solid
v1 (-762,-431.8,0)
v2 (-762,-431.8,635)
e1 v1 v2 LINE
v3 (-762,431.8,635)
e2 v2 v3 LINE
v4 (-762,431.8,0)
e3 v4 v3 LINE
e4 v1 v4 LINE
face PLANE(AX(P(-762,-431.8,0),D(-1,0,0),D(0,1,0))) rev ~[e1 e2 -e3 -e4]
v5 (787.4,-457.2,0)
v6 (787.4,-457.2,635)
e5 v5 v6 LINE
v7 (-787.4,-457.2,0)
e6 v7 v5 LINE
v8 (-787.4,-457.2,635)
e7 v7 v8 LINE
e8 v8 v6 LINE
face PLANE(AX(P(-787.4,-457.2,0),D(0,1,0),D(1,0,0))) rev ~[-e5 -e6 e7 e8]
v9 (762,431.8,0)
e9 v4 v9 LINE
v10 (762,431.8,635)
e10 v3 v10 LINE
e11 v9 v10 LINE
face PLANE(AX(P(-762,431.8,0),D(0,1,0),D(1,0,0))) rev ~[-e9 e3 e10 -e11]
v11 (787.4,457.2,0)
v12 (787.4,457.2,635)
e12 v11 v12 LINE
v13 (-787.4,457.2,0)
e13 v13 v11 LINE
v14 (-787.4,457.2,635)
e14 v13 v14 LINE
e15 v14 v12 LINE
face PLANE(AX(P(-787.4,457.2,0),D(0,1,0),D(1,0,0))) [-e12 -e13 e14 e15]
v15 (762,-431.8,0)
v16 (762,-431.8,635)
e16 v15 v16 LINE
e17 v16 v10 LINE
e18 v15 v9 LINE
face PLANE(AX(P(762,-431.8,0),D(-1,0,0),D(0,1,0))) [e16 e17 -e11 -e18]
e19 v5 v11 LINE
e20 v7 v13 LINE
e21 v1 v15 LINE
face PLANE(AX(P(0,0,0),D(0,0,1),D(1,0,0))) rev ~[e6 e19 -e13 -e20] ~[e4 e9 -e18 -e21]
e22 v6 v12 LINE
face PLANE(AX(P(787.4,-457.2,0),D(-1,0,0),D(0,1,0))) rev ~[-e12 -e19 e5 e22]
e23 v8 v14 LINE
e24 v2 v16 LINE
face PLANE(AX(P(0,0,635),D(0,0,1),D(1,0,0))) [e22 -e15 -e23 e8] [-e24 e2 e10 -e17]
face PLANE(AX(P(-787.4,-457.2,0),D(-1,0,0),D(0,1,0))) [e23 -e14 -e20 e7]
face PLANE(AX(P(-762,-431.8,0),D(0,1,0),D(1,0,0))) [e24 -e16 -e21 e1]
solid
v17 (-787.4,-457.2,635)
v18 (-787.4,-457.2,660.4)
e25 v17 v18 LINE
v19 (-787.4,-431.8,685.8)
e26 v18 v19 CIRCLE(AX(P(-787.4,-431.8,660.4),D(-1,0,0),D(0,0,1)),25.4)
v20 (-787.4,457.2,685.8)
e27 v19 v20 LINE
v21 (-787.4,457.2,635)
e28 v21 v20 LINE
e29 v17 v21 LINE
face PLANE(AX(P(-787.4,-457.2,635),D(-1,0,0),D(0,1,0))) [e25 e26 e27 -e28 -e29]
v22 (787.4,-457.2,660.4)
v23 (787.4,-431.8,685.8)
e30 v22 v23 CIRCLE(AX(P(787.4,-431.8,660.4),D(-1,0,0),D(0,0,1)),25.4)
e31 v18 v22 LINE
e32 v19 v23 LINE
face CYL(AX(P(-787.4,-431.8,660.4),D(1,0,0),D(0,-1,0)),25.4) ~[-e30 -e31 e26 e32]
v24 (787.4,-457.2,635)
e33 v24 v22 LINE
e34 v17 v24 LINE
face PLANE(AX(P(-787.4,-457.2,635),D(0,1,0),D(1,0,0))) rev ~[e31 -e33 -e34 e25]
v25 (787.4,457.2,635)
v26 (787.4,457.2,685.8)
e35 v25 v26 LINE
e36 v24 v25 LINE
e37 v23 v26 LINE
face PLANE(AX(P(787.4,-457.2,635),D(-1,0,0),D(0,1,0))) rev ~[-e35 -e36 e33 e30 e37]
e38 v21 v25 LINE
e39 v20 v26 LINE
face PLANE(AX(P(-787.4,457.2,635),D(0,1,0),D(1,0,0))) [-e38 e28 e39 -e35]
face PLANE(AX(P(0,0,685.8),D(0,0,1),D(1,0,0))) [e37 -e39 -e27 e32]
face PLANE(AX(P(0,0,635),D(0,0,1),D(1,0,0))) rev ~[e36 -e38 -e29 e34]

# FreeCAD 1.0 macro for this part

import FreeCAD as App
import Part
import Sketcher
Q = App.Units.Quantity


def edges_at(feature, points):
    """Names of the edges that pass closest to the given points."""
    edges = feature.Shape.Edges
    near = lambda p: min(range(len(edges)), key=lambda i: edges[i].distToShape(Part.Vertex(*p))[0])
    return sorted({f"Edge{near(p) + 1}" for p in points})

doc = App.newDocument("Part")
body = doc.addObject("PartDesign::Body", "Body")

# Sketch on XY plane
sketch1 = body.newObject("Sketcher::SketchObject", "Sketch")
sketch1.AttachmentSupport = (doc.getObject("XY_Plane"), [""])
sketch1.MapMode = "FlatFace"
sketch1.addGeometry([
    Part.LineSegment(App.Vector(-787, 457, 0), App.Vector(-787, -457, 0)),  # 0
    Part.LineSegment(App.Vector(-787, -457, 0), App.Vector(787, -457, 0)),  # 1
    Part.LineSegment(App.Vector(787, -457, 0), App.Vector(787, 457, 0)),  # 2
    Part.LineSegment(App.Vector(787, 457, 0), App.Vector(-787, 457, 0)),  # 3
    Part.LineSegment(App.Vector(762, -432, 0), App.Vector(-762, -432, 0)),  # 4
    Part.LineSegment(App.Vector(-762, -432, 0), App.Vector(-762, 432, 0)),  # 5
    Part.LineSegment(App.Vector(-762, 432, 0), App.Vector(762, 432, 0)),  # 6
    Part.LineSegment(App.Vector(762, 432, 0), App.Vector(762, -432, 0)),  # 7
], False)
sketch1.addConstraint([
    Sketcher.Constraint("Coincident", 0, 2, 1, 1),
    Sketcher.Constraint("Coincident", 1, 2, 2, 1),
    Sketcher.Constraint("Coincident", 2, 2, 3, 1),
    Sketcher.Constraint("Coincident", 3, 2, 0, 1),
    Sketcher.Constraint("Coincident", 4, 2, 5, 1),
    Sketcher.Constraint("Coincident", 5, 2, 6, 1),
    Sketcher.Constraint("Coincident", 6, 2, 7, 1),
    Sketcher.Constraint("Coincident", 7, 2, 4, 1),
    Sketcher.Constraint("Vertical", 0),
    Sketcher.Constraint("Horizontal", 1),
    Sketcher.Constraint("Vertical", 2),
    Sketcher.Constraint("Horizontal", 3),
    Sketcher.Constraint("Horizontal", 4),
    Sketcher.Constraint("Vertical", 5),
    Sketcher.Constraint("Horizontal", 6),
    Sketcher.Constraint("Vertical", 7),
    Sketcher.Constraint("Symmetric", 0, 2, 2, 2, -1, 1),
    Sketcher.Constraint("Symmetric", 4, 2, 6, 2, -1, 1),
    Sketcher.Constraint("DistanceX", 1, 1, 1, 2, Q("62 in")),
    Sketcher.Constraint("DistanceX", 4, 2, 4, 1, Q("60 in")),
    Sketcher.Constraint("DistanceY", 0, 2, 0, 1, Q("36 in")),
    Sketcher.Constraint("DistanceY", 5, 1, 5, 2, Q("34 in")),
])
pad1 = body.newObject("PartDesign::Pad", "Pad")
pad1.Profile = sketch1
pad1.Length = Q("25 in")
body2 = doc.addObject("PartDesign::Body", "Body001")

# Sketch on XY plane
sketch2 = body2.newObject("Sketcher::SketchObject", "Sketch001")
sketch2.AttachmentSupport = (doc.getObject("XY_Plane001"), [""])
sketch2.MapMode = "FlatFace"
sketch2.AttachmentOffset = App.Placement(App.Vector(0, 0, 25 * 25.4), App.Rotation())
sketch2.addGeometry([
    Part.LineSegment(App.Vector(-787, 457, 0), App.Vector(-787, -457, 0)),
    Part.LineSegment(App.Vector(-787, -457, 0), App.Vector(787, -457, 0)),
    Part.LineSegment(App.Vector(787, -457, 0), App.Vector(787, 457, 0)),
    Part.LineSegment(App.Vector(787, 457, 0), App.Vector(-787, 457, 0)),
], False)
sketch2.addConstraint([
    Sketcher.Constraint("Coincident", 0, 2, 1, 1),
    Sketcher.Constraint("Coincident", 1, 2, 2, 1),
    Sketcher.Constraint("Coincident", 2, 2, 3, 1),
    Sketcher.Constraint("Coincident", 3, 2, 0, 1),
    Sketcher.Constraint("Vertical", 0),
    Sketcher.Constraint("Horizontal", 1),
    Sketcher.Constraint("Vertical", 2),
    Sketcher.Constraint("Horizontal", 3),
    Sketcher.Constraint("Symmetric", 0, 2, 2, 2, -1, 1),
    Sketcher.Constraint("DistanceX", 1, 1, 1, 2, Q("62 in")),
    Sketcher.Constraint("DistanceY", 0, 2, 0, 1, Q("36 in")),
])
pad2 = body2.newObject("PartDesign::Pad", "Pad001")
pad2.Profile = sketch2
pad2.Length = Q("2 in")
doc.recompute()

fillet = body2.newObject("PartDesign::Fillet", "Fillet")
fillet.Base = (pad2, edges_at(pad2, [(0, -457.2, 685.8)]))
fillet.Radius = Q("1 in")

doc.recompute()
